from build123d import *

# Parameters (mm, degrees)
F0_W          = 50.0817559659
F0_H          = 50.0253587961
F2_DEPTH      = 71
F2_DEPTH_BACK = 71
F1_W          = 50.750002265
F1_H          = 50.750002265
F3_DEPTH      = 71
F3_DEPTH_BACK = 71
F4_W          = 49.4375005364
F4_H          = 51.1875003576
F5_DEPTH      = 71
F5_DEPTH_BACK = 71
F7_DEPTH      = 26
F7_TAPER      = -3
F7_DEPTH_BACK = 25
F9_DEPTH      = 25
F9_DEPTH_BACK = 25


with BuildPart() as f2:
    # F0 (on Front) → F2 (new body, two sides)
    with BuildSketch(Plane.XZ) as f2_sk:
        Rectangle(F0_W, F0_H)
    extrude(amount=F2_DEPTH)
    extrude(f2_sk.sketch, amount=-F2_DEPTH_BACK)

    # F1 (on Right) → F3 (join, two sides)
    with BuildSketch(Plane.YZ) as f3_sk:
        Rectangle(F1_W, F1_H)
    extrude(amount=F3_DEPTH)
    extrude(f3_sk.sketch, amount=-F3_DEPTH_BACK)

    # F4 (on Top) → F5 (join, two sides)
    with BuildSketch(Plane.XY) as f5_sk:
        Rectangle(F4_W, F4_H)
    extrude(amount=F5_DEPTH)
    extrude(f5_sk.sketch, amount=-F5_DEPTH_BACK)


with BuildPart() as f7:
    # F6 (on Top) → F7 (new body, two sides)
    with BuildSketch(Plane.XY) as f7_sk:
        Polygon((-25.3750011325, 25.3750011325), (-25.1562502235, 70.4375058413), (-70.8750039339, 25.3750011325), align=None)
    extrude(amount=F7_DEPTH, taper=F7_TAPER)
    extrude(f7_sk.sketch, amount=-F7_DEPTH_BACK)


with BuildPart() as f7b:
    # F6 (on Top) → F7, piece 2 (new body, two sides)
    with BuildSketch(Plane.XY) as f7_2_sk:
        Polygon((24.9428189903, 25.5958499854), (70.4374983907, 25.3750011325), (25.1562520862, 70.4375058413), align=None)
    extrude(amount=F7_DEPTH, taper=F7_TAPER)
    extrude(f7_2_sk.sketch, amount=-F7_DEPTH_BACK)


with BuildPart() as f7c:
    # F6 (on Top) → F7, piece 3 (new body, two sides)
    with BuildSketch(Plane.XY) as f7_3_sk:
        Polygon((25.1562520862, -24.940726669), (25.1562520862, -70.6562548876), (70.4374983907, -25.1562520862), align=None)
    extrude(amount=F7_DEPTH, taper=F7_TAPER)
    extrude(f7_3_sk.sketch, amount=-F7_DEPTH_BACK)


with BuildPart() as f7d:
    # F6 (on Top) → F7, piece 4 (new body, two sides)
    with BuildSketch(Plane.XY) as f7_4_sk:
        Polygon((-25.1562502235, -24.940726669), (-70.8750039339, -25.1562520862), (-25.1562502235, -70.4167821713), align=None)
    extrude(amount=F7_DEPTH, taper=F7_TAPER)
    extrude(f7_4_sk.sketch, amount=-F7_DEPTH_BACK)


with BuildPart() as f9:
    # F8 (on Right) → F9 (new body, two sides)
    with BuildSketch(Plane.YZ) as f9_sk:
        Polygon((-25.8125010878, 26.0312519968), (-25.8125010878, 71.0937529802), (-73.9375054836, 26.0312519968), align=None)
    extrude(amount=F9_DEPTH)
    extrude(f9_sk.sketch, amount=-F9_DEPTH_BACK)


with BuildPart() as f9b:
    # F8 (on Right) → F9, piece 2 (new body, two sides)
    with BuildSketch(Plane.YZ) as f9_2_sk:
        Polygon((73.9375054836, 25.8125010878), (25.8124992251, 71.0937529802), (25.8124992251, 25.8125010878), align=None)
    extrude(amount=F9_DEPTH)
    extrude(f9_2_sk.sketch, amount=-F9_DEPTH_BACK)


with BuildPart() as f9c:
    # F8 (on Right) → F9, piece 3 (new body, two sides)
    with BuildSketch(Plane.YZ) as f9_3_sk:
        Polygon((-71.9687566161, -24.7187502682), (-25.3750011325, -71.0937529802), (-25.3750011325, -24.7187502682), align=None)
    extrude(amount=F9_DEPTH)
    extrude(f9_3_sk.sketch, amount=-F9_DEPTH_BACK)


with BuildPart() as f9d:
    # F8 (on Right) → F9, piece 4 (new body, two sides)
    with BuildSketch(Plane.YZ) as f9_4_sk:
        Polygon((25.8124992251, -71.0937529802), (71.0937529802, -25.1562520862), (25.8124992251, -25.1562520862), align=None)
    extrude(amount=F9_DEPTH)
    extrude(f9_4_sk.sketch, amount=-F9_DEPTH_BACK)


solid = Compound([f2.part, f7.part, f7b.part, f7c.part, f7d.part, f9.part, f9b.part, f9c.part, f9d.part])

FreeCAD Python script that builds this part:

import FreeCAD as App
import Part
import Sketcher

V = App.Vector
Q = App.Units.Quantity


def add_polygon(sketch, points):
    """Adds a closed chain of lines whose ends are joined by coincident constraints."""
    first, n = sketch.GeometryCount, len(points)
    for a, b in zip(points, points[1:] + points[:1]):
        sketch.addGeometry(Part.LineSegment(App.Vector(*a, 0), App.Vector(*b, 0)), False)
    for i in range(n):
        sketch.addConstraint(Sketcher.Constraint("Coincident", first + i, 2, first + (i + 1) % n, 1))

doc = App.newDocument("Part")
body = doc.addObject("PartDesign::Body", "Body")

# Sketch on XZ plane
sketch1 = body.newObject("Sketcher::SketchObject", "Sketch")
sketch1.AttachmentSupport = (doc.getObject("XZ_Plane"), [""])
sketch1.MapMode = "FlatFace"
add_polygon(sketch1, [(-25, 25), (-25, -25), (25, -25), (25, 25)])  # lines 0-3
sketch1.addConstraint([
    Sketcher.Constraint("Vertical", 0),
    Sketcher.Constraint("Horizontal", 1),
    Sketcher.Constraint("Vertical", 2),
    Sketcher.Constraint("Horizontal", 3),
    Sketcher.Constraint("Symmetric", 0, 2, 2, 2, -1, 1),
    Sketcher.Constraint("DistanceY", 0, 2, 0, 1, Q("50.025359 mm")),
    Sketcher.Constraint("DistanceX", 1, 1, 1, 2, Q("50.081756 mm")),
])
pad1 = body.newObject("PartDesign::Pad", "Pad")
pad1.Profile = sketch1
pad1.Type = "TwoLengths"
pad1.Length = 71
pad1.Length2 = 71

# Sketch on YZ plane
sketch2 = body.newObject("Sketcher::SketchObject", "Sketch001")
sketch2.AttachmentSupport = (doc.getObject("YZ_Plane"), [""])
sketch2.MapMode = "FlatFace"
add_polygon(sketch2, [(-25, 25), (-25, -25), (25, -25), (25, 25)])  # lines 0-3
sketch2.addConstraint([
    Sketcher.Constraint("Vertical", 0),
    Sketcher.Constraint("Horizontal", 1),
    Sketcher.Constraint("Vertical", 2),
    Sketcher.Constraint("Horizontal", 3),
    Sketcher.Constraint("Symmetric", 0, 2, 2, 2, -1, 1),
    Sketcher.Constraint("Equal", 3, 0),
    Sketcher.Constraint("DistanceX", 0, 2, -1, 1, Q("25.375001 mm")),
])
pad2 = body.newObject("PartDesign::Pad", "Pad001")
pad2.Profile = sketch2
pad2.Type = "TwoLengths"
pad2.Length = 71
pad2.Length2 = 71

# Sketch on XY plane
sketch3 = body.newObject("Sketcher::SketchObject", "Sketch002")
sketch3.AttachmentSupport = (doc.getObject("XY_Plane"), [""])
sketch3.MapMode = "FlatFace"
add_polygon(sketch3, [(-25, 26), (-25, -26), (25, -26), (25, 26)])  # lines 0-3
sketch3.addConstraint([
    Sketcher.Constraint("Vertical", 0),
    Sketcher.Constraint("Horizontal", 1),
    Sketcher.Constraint("Vertical", 2),
    Sketcher.Constraint("Horizontal", 3),
    Sketcher.Constraint("Symmetric", 0, 2, 2, 2, -1, 1),
    Sketcher.Constraint("DistanceX", 1, 1, 1, 2, Q("49.437501 mm")),
    Sketcher.Constraint("DistanceY", 0, 2, 0, 1, Q("51.1875 mm")),
])
pad3 = body.newObject("PartDesign::Pad", "Pad002")
pad3.Profile = sketch3
pad3.Type = "TwoLengths"
pad3.Length = 71
pad3.Length2 = 71
body2 = doc.addObject("PartDesign::Body", "Body001")

# Sketch on XY plane
sketch4 = body2.newObject("Sketcher::SketchObject", "Sketch003")
sketch4.AttachmentSupport = (doc.getObject("XY_Plane001"), [""])
sketch4.MapMode = "FlatFace"
add_polygon(sketch4, [(-25, 25), (-25, 70), (-71, 25)])  # lines 0-2
sketch4.addConstraint([
    Sketcher.Constraint("Horizontal", 2),
    Sketcher.Constraint("DistanceY", -1, 1, 1, 2, Q("25.375001 mm")),
    Sketcher.Constraint("DistanceX", 2, 2, -1, 1, Q("25.375001 mm")),
    Sketcher.Constraint("Distance", 1, Q("64.193721 mm")),
    Sketcher.Constraint("DistanceX", 2, 1, 2, 2, Q("45.500003 mm")),
    Sketcher.Constraint("DistanceX", 0, 2, -1, 1, Q("25.15625 mm")),
])
pad4 = body2.newObject("PartDesign::Pad", "Pad003")
pad4.Profile = sketch4
pad4.Length = 26
pad4.TaperAngle = 3
pad5 = body2.newObject("PartDesign::Pad", "Pad004")
pad5.Profile = sketch4
pad5.Length = 25
pad5.Reversed = True
body3 = doc.addObject("PartDesign::Body", "Body002")

# Sketch on XY plane
sketch5 = body3.newObject("Sketcher::SketchObject", "Sketch004")
sketch5.AttachmentSupport = (doc.getObject("XY_Plane002"), [""])
sketch5.MapMode = "FlatFace"
add_polygon(sketch5, [(25, 26), (70, 25), (25, 70)])  # lines 0-2
sketch5.addConstraint([
    Sketcher.Constraint("DistanceY", -1, 1, 0, 2, Q("25.375001 mm")),
    Sketcher.Constraint("DistanceX", -1, 1, 0, 2, Q("70.437498 mm")),
    Sketcher.Constraint("DistanceX", -1, 1, 2, 2, Q("24.942819 mm")),
    Sketcher.Constraint("DistanceY", -1, 1, 2, 2, Q("25.59585 mm")),
    Sketcher.Constraint("Distance", 1, Q("63.882866 mm")),
    Sketcher.Constraint("Distance", 2, Q("44.842164 mm")),
])
pad6 = body3.newObject("PartDesign::Pad", "Pad005")
pad6.Profile = sketch5
pad6.Length = 26
pad6.TaperAngle = 3
pad7 = body3.newObject("PartDesign::Pad", "Pad006")
pad7.Profile = sketch5
pad7.Length = 25
pad7.Reversed = True
body4 = doc.addObject("PartDesign::Body", "Body003")

# Sketch on XY plane
sketch6 = body4.newObject("Sketcher::SketchObject", "Sketch005")
sketch6.AttachmentSupport = (doc.getObject("XY_Plane003"), [""])
sketch6.MapMode = "FlatFace"
add_polygon(sketch6, [(25, -25), (25, -71), (70, -25)])  # lines 0-2
sketch6.addConstraint([
    Sketcher.Constraint("Vertical", 0),
    Sketcher.Constraint("DistanceY", 0, 2, 0, 1, Q("45.715528 mm")),
    Sketcher.Constraint("DistanceX", -1, 1, 1, 2, Q("70.437498 mm")),
    Sketcher.Constraint("Distance", 2, Q("45.281759 mm")),
    Sketcher.Constraint("Distance", 1, Q("64.192223 mm")),
    Sketcher.Constraint("DistanceY", 0, 2, -1, 1, Q("70.656255 mm")),
])
pad8 = body4.newObject("PartDesign::Pad", "Pad007")
pad8.Profile = sketch6
pad8.Length = 26
pad8.TaperAngle = 3
pad9 = body4.newObject("PartDesign::Pad", "Pad008")
pad9.Profile = sketch6
pad9.Length = 25
pad9.Reversed = True
body5 = doc.addObject("PartDesign::Body", "Body004")

# Sketch on XY plane
sketch7 = body5.newObject("Sketcher::SketchObject", "Sketch006")
sketch7.AttachmentSupport = (doc.getObject("XY_Plane004"), [""])
sketch7.MapMode = "FlatFace"
add_polygon(sketch7, [(-25, -25), (-71, -25), (-25, -70)])  # lines 0-2
sketch7.addConstraint([
    Sketcher.Constraint("Vertical", 2),
    Sketcher.Constraint("Distance", 0, Q("45.719262 mm")),
    Sketcher.Constraint("DistanceY", 2, 1, 2, 2, Q("45.476056 mm")),
    Sketcher.Constraint("DistanceX", 1, 2, -1, 1, Q("25.15625 mm")),
    Sketcher.Constraint("DistanceY", 1, 2, 0, 2, Q("45.26053 mm")),
    Sketcher.Constraint("DistanceY", 0, 2, -1, 1, Q("25.156252 mm")),
])
pad10 = body5.newObject("PartDesign::Pad", "Pad009")
pad10.Profile = sketch7
pad10.Length = 26
pad10.TaperAngle = 3
pad11 = body5.newObject("PartDesign::Pad", "Pad010")
pad11.Profile = sketch7
pad11.Length = 25
pad11.Reversed = True
body6 = doc.addObject("PartDesign::Body", "Body005")

# Sketch on YZ plane
sketch8 = body6.newObject("Sketcher::SketchObject", "Sketch007")
sketch8.AttachmentSupport = (doc.getObject("YZ_Plane005"), [""])
sketch8.MapMode = "FlatFace"
add_polygon(sketch8, [(-26, 26), (-26, 71), (-74, 26)])  # lines 0-2
sketch8.addConstraint([
    Sketcher.Constraint("Vertical", 0),
    Sketcher.Constraint("Horizontal", 2),
    Sketcher.Constraint("DistanceY", 0, 1, 0, 2, Q("45.062501 mm")),
    Sketcher.Constraint("DistanceX", 0, 2, -1, 1, Q("25.812501 mm")),
    Sketcher.Constraint("Distance", 1, Q("65.929091 mm")),
    Sketcher.Constraint("DistanceY", -1, 1, 1, 2, Q("26.031252 mm")),
])
pad12 = body6.newObject("PartDesign::Pad", "Pad011")
pad12.Profile = sketch8
pad12.Type = "TwoLengths"
pad12.Length = 25
pad12.Length2 = 25
body7 = doc.addObject("PartDesign::Body", "Body006")

# Sketch on YZ plane
sketch9 = body7.newObject("Sketcher::SketchObject", "Sketch008")
sketch9.AttachmentSupport = (doc.getObject("YZ_Plane006"), [""])
sketch9.MapMode = "FlatFace"
add_polygon(sketch9, [(74, 26), (26, 71), (26, 26)])  # lines 0-2
sketch9.addConstraint([
    Sketcher.Constraint("Vertical", 1),
    Sketcher.Constraint("Horizontal", 2),
    Sketcher.Constraint("Distance", 0, Q("66.078801 mm")),
    Sketcher.Constraint("DistanceY", 1, 2, 1, 1, Q("45.281252 mm")),
    Sketcher.Constraint("DistanceX", -1, 1, 0, 2, Q("25.812499 mm")),
    Sketcher.Constraint("DistanceY", -1, 1, 1, 2, Q("25.812501 mm")),
])
pad13 = body7.newObject("PartDesign::Pad", "Pad012")
pad13.Profile = sketch9
pad13.Type = "TwoLengths"
pad13.Length = 25
pad13.Length2 = 25
body8 = doc.addObject("PartDesign::Body", "Body007")

# Sketch on YZ plane
sketch10 = body8.newObject("Sketcher::SketchObject", "Sketch009")
sketch10.AttachmentSupport = (doc.getObject("YZ_Plane007"), [""])
sketch10.MapMode = "FlatFace"
add_polygon(sketch10, [(-72, -25), (-25, -71), (-25, -25)])  # lines 0-2
sketch10.addConstraint([
    Sketcher.Constraint("Vertical", 1),
    Sketcher.Constraint("Horizontal", 2),
    Sketcher.Constraint("DistanceX", 0, 2, -1, 1, Q("25.375001 mm")),
    Sketcher.Constraint("Distance", 0, Q("65.739021 mm")),
    Sketcher.Constraint("DistanceX", 2, 2, 2, 1, Q("46.593755 mm")),
    Sketcher.Constraint("DistanceY", 1, 2, -1, 1, Q("24.71875 mm")),
])
pad14 = body8.newObject("PartDesign::Pad", "Pad013")
pad14.Profile = sketch10
pad14.Type = "TwoLengths"
pad14.Length = 25
pad14.Length2 = 25
body9 = doc.addObject("PartDesign::Body", "Body008")

# Sketch on YZ plane
sketch11 = body9.newObject("Sketcher::SketchObject", "Sketch010")
sketch11.AttachmentSupport = (doc.getObject("YZ_Plane008"), [""])
sketch11.MapMode = "FlatFace"
add_polygon(sketch11, [(26, -71), (71, -25), (26, -25)])  # lines 0-2
sketch11.addConstraint([
    Sketcher.Constraint("Horizontal", 1),
    Sketcher.Constraint("Vertical", 2),
    Sketcher.Constraint("DistanceY", 2, 2, 2, 1, Q("45.937501 mm")),
    Sketcher.Constraint("DistanceX", -1, 1, 1, 2, Q("25.812499 mm")),
    Sketcher.Constraint("Distance", 0, Q("64.503069 mm")),
    Sketcher.Constraint("DistanceY", 0, 2, -1, 1, Q("25.156252 mm")),
])
pad15 = body9.newObject("PartDesign::Pad", "Pad014")
pad15.Profile = sketch11
pad15.Type = "TwoLengths"
pad15.Length = 25
pad15.Length2 = 25

doc.recompute()
